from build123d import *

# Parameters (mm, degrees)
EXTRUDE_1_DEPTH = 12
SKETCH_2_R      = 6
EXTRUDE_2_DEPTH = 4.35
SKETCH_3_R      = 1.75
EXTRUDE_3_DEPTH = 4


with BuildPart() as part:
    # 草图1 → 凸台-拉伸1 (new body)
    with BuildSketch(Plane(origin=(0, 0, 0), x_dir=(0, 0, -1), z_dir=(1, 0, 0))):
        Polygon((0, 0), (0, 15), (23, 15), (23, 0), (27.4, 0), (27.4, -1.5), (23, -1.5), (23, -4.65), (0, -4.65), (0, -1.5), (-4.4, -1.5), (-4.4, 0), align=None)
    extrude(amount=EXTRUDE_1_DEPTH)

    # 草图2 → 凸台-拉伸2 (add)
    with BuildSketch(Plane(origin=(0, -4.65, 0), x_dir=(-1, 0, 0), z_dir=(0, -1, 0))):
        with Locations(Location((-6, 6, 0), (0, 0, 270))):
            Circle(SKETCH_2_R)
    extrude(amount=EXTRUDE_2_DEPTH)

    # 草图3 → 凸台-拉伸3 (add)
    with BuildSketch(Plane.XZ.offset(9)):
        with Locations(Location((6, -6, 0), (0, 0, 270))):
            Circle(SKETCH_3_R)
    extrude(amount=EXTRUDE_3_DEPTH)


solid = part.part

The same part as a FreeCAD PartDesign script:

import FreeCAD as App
import Part
import Sketcher

V = App.Vector
Q = App.Units.Quantity


def add_polygon(sketch, points):
    """Adds a closed chain of lines whose ends are joined by coincident constraints."""
    first, n = sketch.GeometryCount, len(points)
    for a, b in zip(points, points[1:] + points[:1]):
        sketch.addGeometry(Part.LineSegment(App.Vector(*a, 0), App.Vector(*b, 0)), False)
    for i in range(n):
        sketch.addConstraint(Sketcher.Constraint("Coincident", first + i, 2, first + (i + 1) % n, 1))

doc = App.newDocument("Part")
params = doc.addObject("Spreadsheet::Sheet", "Params")
for row, (alias, value) in enumerate([
    ("sketch1_width", "15 mm"),
    ("sketch1_height", "23 mm"),
    ("sketch1_width2", "1.5 mm"),
    ("sketch1_height2", "4.4 mm"),
    ("sketch1_width3", "3.15 mm"),
    ("pad1_length", "12 mm"),
    ("sketch2_diameter", "12 mm"),
    ("pad2_length", "4.35 mm"),
    ("sketch3_diameter", "3.5 mm"),
    ("pad3_length", "4 mm"),
], start=1):
    params.set(f"A{row}", alias)
    params.set(f"B{row}", "=" + value)
    params.setAlias(f"B{row}", alias)

body = doc.addObject("PartDesign::Body", "Body")

# Sketch on YZ plane
sketch1 = body.newObject("Sketcher::SketchObject", "Sketch")
sketch1.AttachmentSupport = (doc.getObject("YZ_Plane"), [""])
sketch1.MapMode = "FlatFace"
add_polygon(sketch1, [(15, 0), (0, 0), (0, 4.4), (-1.5, 4.4), (-1.5, 0), (-4.7, 0), (-4.7, -23), (-1.5, -23), (-1.5, -27.4), (0, -27.4), (0, -23), (15, -23)])  # lines 0-11
sketch1.addConstraint([
    Sketcher.Constraint("Horizontal", 0),
    Sketcher.Constraint("Vertical", 1),
    Sketcher.Constraint("Horizontal", 2),
    Sketcher.Constraint("Vertical", 3),
    Sketcher.Constraint("Horizontal", 4),
    Sketcher.Constraint("Vertical", 5),
    Sketcher.Constraint("Horizontal", 6),
    Sketcher.Constraint("Vertical", 7),
    Sketcher.Constraint("Horizontal", 8),
    Sketcher.Constraint("Vertical", 9),
    Sketcher.Constraint("Horizontal", 10),
    Sketcher.Constraint("Vertical", 11),
    Sketcher.Constraint("Coincident", 0, 2, -1, 1),
    Sketcher.Constraint("PointOnObject", 3, 2, -1),
    Sketcher.Constraint("PointOnObject", 8, 2, -2),
    Sketcher.Constraint("Horizontal", 6, 2, 9, 2),
    Sketcher.Constraint("Vertical", 3, 2, 6, 2),
    Sketcher.Constraint("Equal", 3, 7),
    Sketcher.Constraint("DistanceX", 0, 2, 0, 1, Q("15 mm")),
    Sketcher.Constraint("DistanceY", 5, 2, 5, 1, Q("23 mm")),
    Sketcher.Constraint("DistanceX", 2, 2, 2, 1, Q("1.5 mm")),
    Sketcher.Constraint("DistanceY", 1, 1, 1, 2, Q("4.4 mm")),
    Sketcher.Constraint("DistanceX", 4, 2, 4, 1, Q("3.15 mm")),
])
sketch1.setExpression("Constraints[30]", "Params.sketch1_width")
sketch1.setExpression("Constraints[31]", "Params.sketch1_height")
sketch1.setExpression("Constraints[32]", "Params.sketch1_width2")
sketch1.setExpression("Constraints[33]", "Params.sketch1_height2")
sketch1.setExpression("Constraints[34]", "Params.sketch1_width3")
pad1 = body.newObject("PartDesign::Pad", "Pad")
pad1.Profile = sketch1
pad1.setExpression("Length", "Params.pad1_length")

# Sketch on XZ plane
sketch2 = body.newObject("Sketcher::SketchObject", "Sketch001")
sketch2.AttachmentSupport = (doc.getObject("XZ_Plane"), [""])
sketch2.MapMode = "FlatFace"
sketch2.AttachmentOffset = App.Placement(V(0, 0, 4.65), App.Rotation())
sketch2.addGeometry(Part.Circle(V(6, -6, 0), V(0, 0, 1), 6), False)
sketch2.addConstraint([
    Sketcher.Constraint("Diameter", 0, Q("12 mm")),
    Sketcher.Constraint("DistanceX", -1, 1, 0, 3, Q("6 mm")),
    Sketcher.Constraint("DistanceY", 0, 3, -1, 1, Q("6 mm")),
])
sketch2.setExpression("Constraints[0]", "Params.sketch2_diameter")
pad2 = body.newObject("PartDesign::Pad", "Pad001")
pad2.Profile = sketch2
pad2.setExpression("Length", "Params.pad2_length")

# Sketch on XZ plane
sketch3 = body.newObject("Sketcher::SketchObject", "Sketch002")
sketch3.AttachmentSupport = (doc.getObject("XZ_Plane"), [""])
sketch3.MapMode = "FlatFace"
sketch3.AttachmentOffset = App.Placement(V(0, 0, 9), App.Rotation())
sketch3.addGeometry(Part.Circle(V(6, -6, 0), V(0, 0, 1), 1.8), False)
sketch3.addConstraint([
    Sketcher.Constraint("Diameter", 0, Q("3.5 mm")),
    Sketcher.Constraint("DistanceX", -1, 1, 0, 3, Q("6 mm")),
    Sketcher.Constraint("DistanceY", 0, 3, -1, 1, Q("6 mm")),
])
sketch3.setExpression("Constraints[0]", "Params.sketch3_diameter")
pad3 = body.newObject("PartDesign::Pad", "Pad002")
pad3.Profile = sketch3
pad3.setExpression("Length", "Params.pad3_length")

doc.recompute()
